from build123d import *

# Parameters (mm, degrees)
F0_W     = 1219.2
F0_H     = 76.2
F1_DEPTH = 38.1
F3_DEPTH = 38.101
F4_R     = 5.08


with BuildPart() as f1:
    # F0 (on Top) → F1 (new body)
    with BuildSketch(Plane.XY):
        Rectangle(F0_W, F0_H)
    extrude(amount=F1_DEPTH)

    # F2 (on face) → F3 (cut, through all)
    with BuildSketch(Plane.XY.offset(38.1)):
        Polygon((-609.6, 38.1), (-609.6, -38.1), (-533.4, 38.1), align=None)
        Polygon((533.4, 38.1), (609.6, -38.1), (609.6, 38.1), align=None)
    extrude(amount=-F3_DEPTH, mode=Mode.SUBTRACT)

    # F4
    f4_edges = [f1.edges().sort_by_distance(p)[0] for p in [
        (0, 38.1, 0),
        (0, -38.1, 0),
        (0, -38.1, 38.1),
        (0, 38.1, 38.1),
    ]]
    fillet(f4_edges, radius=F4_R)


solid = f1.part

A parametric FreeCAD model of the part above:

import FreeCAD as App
import Part
import Sketcher
from FreeCAD import Vector
Q = App.Units.Quantity


def edges_at(feature, points):
    """Names of the edges that pass closest to the given points."""
    edges = feature.Shape.Edges
    near = lambda p: min(range(len(edges)), key=lambda i: edges[i].distToShape(Part.Vertex(*p))[0])
    return sorted({f"Edge{near(p) + 1}" for p in points})

doc = App.newDocument("Part")
body = doc.addObject("PartDesign::Body", "Body")

# Sketch on XY plane
sketch1 = doc.addObject("Sketcher::SketchObject", "Sketch")
body.addObject(sketch1)
sketch1.AttachmentSupport = (doc.XY_Plane, [""])
sketch1.MapMode = "FlatFace"
sketch1.addGeometry([
    Part.LineSegment(Vector(-609.6, 38.1, 0), Vector(-609.6, -38.1, 0)),
    Part.LineSegment(Vector(-609.6, -38.1, 0), Vector(609.6, -38.1, 0)),
    Part.LineSegment(Vector(609.6, -38.1, 0), Vector(609.6, 38.1, 0)),
    Part.LineSegment(Vector(609.6, 38.1, 0), Vector(-609.6, 38.1, 0)),
], False)
sketch1.addConstraint([
    Sketcher.Constraint("Coincident", 0, 2, 1, 1),
    Sketcher.Constraint("Coincident", 1, 2, 2, 1),
    Sketcher.Constraint("Coincident", 2, 2, 3, 1),
    Sketcher.Constraint("Coincident", 3, 2, 0, 1),
    Sketcher.Constraint("Vertical", 0),
    Sketcher.Constraint("Horizontal", 1),
    Sketcher.Constraint("Vertical", 2),
    Sketcher.Constraint("Horizontal", 3),
    Sketcher.Constraint("Symmetric", 0, 2, 2, 2, -1, 1),
    Sketcher.Constraint("DistanceX", 1, 1, 1, 2, Q("48 in")),
    Sketcher.Constraint("DistanceY", 0, 2, 0, 1, Q("3 in")),
])
pad1 = doc.addObject("PartDesign::Pad", "Pad")
body.addObject(pad1)
pad1.Profile = sketch1
pad1.Length = Q("1.5 in")

# Sketch on XY plane
sketch2 = doc.addObject("Sketcher::SketchObject", "Sketch001")
body.addObject(sketch2)
sketch2.AttachmentSupport = (doc.XY_Plane, [""])
sketch2.MapMode = "FlatFace"
sketch2.AttachmentOffset = App.Placement(Vector(0, 0, 1.5 * 25.4), App.Rotation())
sketch2.addGeometry([
    Part.LineSegment(Vector(-609.6, 38.1, 0), Vector(-609.6, -38.1, 0)),  # 0
    Part.LineSegment(Vector(-609.6, -38.1, 0), Vector(-533.4, 38.1, 0)),  # 1
    Part.LineSegment(Vector(-533.4, 38.1, 0), Vector(-609.6, 38.1, 0)),  # 2
    Part.LineSegment(Vector(533.4, 38.1, 0), Vector(609.6, -38.1, 0)),  # 3
    Part.LineSegment(Vector(609.6, -38.1, 0), Vector(609.6, 38.1, 0)),  # 4
    Part.LineSegment(Vector(609.6, 38.1, 0), Vector(533.4, 38.1, 0)),  # 5
], False)
sketch2.addConstraint([
    Sketcher.Constraint("Coincident", 0, 2, 1, 1),
    Sketcher.Constraint("Coincident", 1, 2, 2, 1),
    Sketcher.Constraint("Coincident", 2, 2, 0, 1),
    Sketcher.Constraint("Coincident", 3, 2, 4, 1),
    Sketcher.Constraint("Coincident", 4, 2, 5, 1),
    Sketcher.Constraint("Coincident", 5, 2, 3, 1),
    Sketcher.Constraint("Vertical", 0),
    Sketcher.Constraint("Horizontal", 2),
    Sketcher.Constraint("Vertical", 4),
    Sketcher.Constraint("Horizontal", 5),
    Sketcher.Constraint("Symmetric", 2, 2, 3, 2, -1, 1),
    Sketcher.Constraint("Symmetric", 1, 2, 5, 2, -2),
    Sketcher.Constraint("Perpendicular", 1, 3),
    Sketcher.Constraint("Horizontal", 0, 2, 3, 2),
    Sketcher.Constraint("DistanceX", 2, 2, 2, 1, Q("3 in")),
    Sketcher.Constraint("DistanceX", 0, 2, -1, 1, Q("24 in")),
])
pocket1 = doc.addObject("PartDesign::Pocket", "Pocket")
body.addObject(pocket1)
pocket1.Profile = sketch2
pocket1.Type = "ThroughAll"
doc.recompute()

fillet = doc.addObject("PartDesign::Fillet", "Fillet")
body.addObject(fillet)
fillet.Base = (pocket1, edges_at(pocket1, [
    (0, 38.1, 0),
    (0, -38.1, 0),
    (0, -38.1, 38.1),
    (0, 38.1, 38.1),
]))
fillet.Radius = Q("0.2 in")

doc.recompute()
